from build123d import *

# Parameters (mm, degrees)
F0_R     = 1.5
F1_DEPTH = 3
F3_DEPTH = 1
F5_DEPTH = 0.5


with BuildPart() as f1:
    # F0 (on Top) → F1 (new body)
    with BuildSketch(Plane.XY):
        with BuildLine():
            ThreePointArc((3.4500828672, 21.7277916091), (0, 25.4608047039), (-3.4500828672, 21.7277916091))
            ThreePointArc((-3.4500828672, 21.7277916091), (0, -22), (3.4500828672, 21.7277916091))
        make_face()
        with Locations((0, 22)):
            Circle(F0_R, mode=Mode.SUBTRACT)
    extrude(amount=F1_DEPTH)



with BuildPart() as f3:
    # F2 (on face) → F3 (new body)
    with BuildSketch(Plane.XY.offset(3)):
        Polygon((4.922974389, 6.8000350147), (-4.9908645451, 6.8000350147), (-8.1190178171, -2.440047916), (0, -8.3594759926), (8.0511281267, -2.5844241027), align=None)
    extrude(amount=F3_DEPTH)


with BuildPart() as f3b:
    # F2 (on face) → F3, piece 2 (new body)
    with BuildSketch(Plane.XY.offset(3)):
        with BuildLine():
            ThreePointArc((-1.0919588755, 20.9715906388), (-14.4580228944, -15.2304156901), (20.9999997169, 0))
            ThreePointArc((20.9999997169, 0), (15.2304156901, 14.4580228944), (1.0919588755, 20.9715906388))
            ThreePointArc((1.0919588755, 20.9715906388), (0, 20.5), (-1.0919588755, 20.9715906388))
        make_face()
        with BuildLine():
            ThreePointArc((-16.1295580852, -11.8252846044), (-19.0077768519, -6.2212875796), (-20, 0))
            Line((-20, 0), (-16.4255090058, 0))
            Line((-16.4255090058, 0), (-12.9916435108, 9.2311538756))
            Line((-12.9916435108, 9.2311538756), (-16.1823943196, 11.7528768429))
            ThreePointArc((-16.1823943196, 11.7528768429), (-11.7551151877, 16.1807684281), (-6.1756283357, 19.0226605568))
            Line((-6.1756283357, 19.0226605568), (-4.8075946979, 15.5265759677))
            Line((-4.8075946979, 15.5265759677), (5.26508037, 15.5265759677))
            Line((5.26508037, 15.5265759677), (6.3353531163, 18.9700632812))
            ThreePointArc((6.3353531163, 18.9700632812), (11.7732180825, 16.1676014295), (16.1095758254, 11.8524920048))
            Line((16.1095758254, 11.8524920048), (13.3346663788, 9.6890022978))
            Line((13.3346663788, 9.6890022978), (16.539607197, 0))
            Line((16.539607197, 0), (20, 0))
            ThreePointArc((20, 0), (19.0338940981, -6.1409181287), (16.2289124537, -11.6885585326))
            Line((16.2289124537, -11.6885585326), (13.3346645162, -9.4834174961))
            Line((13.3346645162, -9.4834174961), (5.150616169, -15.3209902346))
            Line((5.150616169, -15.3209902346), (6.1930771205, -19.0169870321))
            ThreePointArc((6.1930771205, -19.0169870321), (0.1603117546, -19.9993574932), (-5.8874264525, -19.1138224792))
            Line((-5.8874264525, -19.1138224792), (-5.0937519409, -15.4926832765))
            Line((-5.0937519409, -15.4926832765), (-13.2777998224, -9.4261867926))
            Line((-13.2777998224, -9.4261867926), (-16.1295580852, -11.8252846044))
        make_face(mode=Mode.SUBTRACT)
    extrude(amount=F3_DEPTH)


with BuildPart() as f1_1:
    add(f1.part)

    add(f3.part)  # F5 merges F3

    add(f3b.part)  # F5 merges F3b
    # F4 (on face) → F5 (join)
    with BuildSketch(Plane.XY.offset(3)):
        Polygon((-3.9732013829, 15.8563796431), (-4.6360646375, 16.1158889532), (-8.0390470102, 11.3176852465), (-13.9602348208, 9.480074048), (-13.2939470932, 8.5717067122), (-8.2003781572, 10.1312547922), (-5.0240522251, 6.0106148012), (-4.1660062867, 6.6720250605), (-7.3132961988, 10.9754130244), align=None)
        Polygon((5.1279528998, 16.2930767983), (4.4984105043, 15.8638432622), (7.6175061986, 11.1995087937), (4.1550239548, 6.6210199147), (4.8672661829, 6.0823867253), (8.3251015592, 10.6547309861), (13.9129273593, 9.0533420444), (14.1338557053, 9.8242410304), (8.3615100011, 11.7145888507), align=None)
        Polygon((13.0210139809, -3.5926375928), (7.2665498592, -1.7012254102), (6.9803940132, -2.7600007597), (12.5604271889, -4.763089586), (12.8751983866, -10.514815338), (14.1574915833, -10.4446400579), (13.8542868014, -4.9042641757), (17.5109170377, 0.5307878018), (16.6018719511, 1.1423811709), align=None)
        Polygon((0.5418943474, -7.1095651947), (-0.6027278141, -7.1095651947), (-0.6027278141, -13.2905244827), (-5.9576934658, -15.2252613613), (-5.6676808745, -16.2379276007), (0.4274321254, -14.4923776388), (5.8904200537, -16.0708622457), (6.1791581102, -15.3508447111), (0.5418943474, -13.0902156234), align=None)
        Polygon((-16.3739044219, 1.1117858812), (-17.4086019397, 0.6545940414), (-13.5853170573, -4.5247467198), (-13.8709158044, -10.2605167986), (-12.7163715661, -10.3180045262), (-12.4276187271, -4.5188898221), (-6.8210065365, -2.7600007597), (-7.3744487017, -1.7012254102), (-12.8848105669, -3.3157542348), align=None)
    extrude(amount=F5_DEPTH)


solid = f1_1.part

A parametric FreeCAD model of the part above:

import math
import FreeCAD as App
import Part
import Sketcher

V = App.Vector
Q = App.Units.Quantity

doc = App.newDocument("Part")
body = doc.addObject("PartDesign::Body", "Body")

# Sketch on XY plane
sketch1 = doc.addObject("Sketcher::SketchObject", "Sketch")
body.addObject(sketch1)
sketch1.AttachmentSupport = (doc.XY_Plane, [""])
sketch1.MapMode = "FlatFace"
sketch1.addGeometry([
    Part.ArcOfCircle(Part.Circle(V(0, 22, 0), V(0, 0, 1), 3.460805), math.radians(-4.511239), math.radians(184.511239)),
    Part.ArcOfCircle(Part.Circle(V(0, 0, 0), V(0, 0, 1), 22), math.radians(99.022479), math.radians(440.977521)),
    Part.Circle(V(0, 22, 0), V(0, 0, 1), 1.5),
], False)
sketch1.addConstraint([
    Sketcher.Constraint("Coincident", 0, 1, 1, 2),
    Sketcher.Constraint("Coincident", 1, 1, 0, 2),
    Sketcher.Constraint("Coincident", 1, 3, -1, 1),
    Sketcher.Constraint("Coincident", 2, 3, 0, 3),
    Sketcher.Constraint("PointOnObject", 0, 3, -2),
    Sketcher.Constraint("Diameter", 2, Q("3 mm")),
    Sketcher.Constraint("Radius", 1, Q("22 mm")),
    Sketcher.Constraint("DistanceY", -1, 1, 0, 3, Q("22 mm")),
    Sketcher.Constraint("Radius", 0, Q("3.460805 mm")),
])
pad1 = doc.addObject("PartDesign::Pad", "Pad")
body.addObject(pad1)
pad1.Profile = sketch1
pad1.Length = 3
body2 = doc.addObject("PartDesign::Body", "Body001")

# Sketch on XY plane
sketch2 = doc.addObject("Sketcher::SketchObject", "Sketch001")
body2.addObject(sketch2)
sketch2.AttachmentSupport = (doc.getObject("XY_Plane001"), [""])
sketch2.MapMode = "FlatFace"
sketch2.AttachmentOffset = App.Placement(V(0, 0, 3), App.Rotation())
sketch2.addGeometry([
    Part.LineSegment(V(4.922974, 6.800035, 0), V(-4.990865, 6.800035, 0)),  # 0
    Part.LineSegment(V(-4.990865, 6.800035, 0), V(-8.119018, -2.440048, 0)),  # 1
    Part.LineSegment(V(-8.119018, -2.440048, 0), V(0, -8.359476, 0)),  # 2
    Part.LineSegment(V(0, -8.359476, 0), V(8.051128, -2.584424, 0)),  # 3
    Part.LineSegment(V(8.051128, -2.584424, 0), V(4.922974, 6.800035, 0)),  # 4
], False)
sketch2.addConstraint([
    Sketcher.Constraint("Coincident", 0, 2, 1, 1),
    Sketcher.Constraint("Coincident", 1, 2, 2, 1),
    Sketcher.Constraint("Coincident", 2, 2, 3, 1),
    Sketcher.Constraint("Coincident", 3, 2, 4, 1),
    Sketcher.Constraint("Coincident", 4, 2, 0, 1),
    Sketcher.Constraint("Horizontal", 0),
    Sketcher.Constraint("PointOnObject", 2, 2, -2),
    Sketcher.Constraint("DistanceX", 0, 2, 0, 1, Q("9.913839 mm")),
    Sketcher.Constraint("Distance", 1, Q("9.755228 mm")),
    Sketcher.Constraint("Distance", 2, Q("10.04779 mm")),
    Sketcher.Constraint("Distance", 4, Q("9.892089 mm")),
    Sketcher.Constraint("DistanceX", -1, 1, 3, 2, Q("8.051128 mm")),
    Sketcher.Constraint("DistanceY", 2, 2, 1, 2, Q("5.919428 mm")),
    Sketcher.Constraint("DistanceY", 2, 2, 0, 2, Q("15.159511 mm")),
    Sketcher.Constraint("DistanceY", -1, 1, 0, 2, Q("6.800035 mm")),
])
pad2 = doc.addObject("PartDesign::Pad", "Pad001")
body2.addObject(pad2)
pad2.Profile = sketch2
pad2.Length = 1
body3 = doc.addObject("PartDesign::Body", "Body002")

# Sketch on XY plane
sketch3 = doc.addObject("Sketcher::SketchObject", "Sketch002")
body3.addObject(sketch3)
sketch3.AttachmentSupport = (doc.getObject("XY_Plane002"), [""])
sketch3.MapMode = "FlatFace"
sketch3.AttachmentOffset = App.Placement(V(0, 0, 3), App.Rotation())
sketch3.addGeometry([
    Part.ArcOfCircle(Part.Circle(V(0, 0, 0), V(0, 0, 1), 21), math.radians(92.980613), math.radians(360)),  # 0
    Part.ArcOfCircle(Part.Circle(V(0, 0, 0), V(0, 0, 1), 21), math.radians(0), math.radians(87.019387)),  # 1
    Part.ArcOfCircle(Part.Circle(V(0, 22, 0), V(0, 0, 1), 1.5), math.radians(-136.716697), math.radians(-43.283303)),  # 2
    Part.LineSegment(V(-13.2778, -9.426187, 0), V(-16.129558, -11.825285, 0)),  # 3
    Part.ArcOfCircle(Part.Circle(V(0, 0, 0), V(0, 0, 1), 20), math.radians(180), math.radians(216.246773)),  # 4
    Part.LineSegment(V(-20, 0, 0), V(-16.425509, 0, 0)),  # 5
    Part.LineSegment(V(-16.425509, 0, 0), V(-12.991644, 9.231154, 0)),  # 6
    Part.LineSegment(V(-12.991644, 9.231154, 0), V(-16.182394, 11.752877, 0)),  # 7
    Part.ArcOfCircle(Part.Circle(V(0, 0, 0), V(0, 0, 1), 20), math.radians(107.985808), math.radians(144.010014)),  # 8
    Part.LineSegment(V(-6.175628, 19.022661, 0), V(-4.807595, 15.526576, 0)),  # 9
    Part.LineSegment(V(-4.807595, 15.526576, 0), V(5.26508, 15.526576, 0)),  # 10
    Part.LineSegment(V(5.26508, 15.526576, 0), V(6.335353, 18.970063, 0)),  # 11
    Part.ArcOfCircle(Part.Circle(V(0, 0, 0), V(0, 0, 1), 20), math.radians(36.34348), math.radians(71.532441)),  # 12
    Part.LineSegment(V(16.109576, 11.852492, 0), V(13.334666, 9.689002, 0)),  # 13
    Part.LineSegment(V(13.334666, 9.689002, 0), V(16.539607, 0, 0)),  # 14
    Part.LineSegment(V(16.539607, 0, 0), V(20, 0, 0)),  # 15
    Part.ArcOfCircle(Part.Circle(V(0, 0, 0), V(0, 0, 1), 20), math.radians(-35.762586), math.radians(0)),  # 16
    Part.LineSegment(V(16.228912, -11.688559, 0), V(13.334665, -9.483417, 0)),  # 17
    Part.LineSegment(V(13.334665, -9.483417, 0), V(5.150616, -15.32099, 0)),  # 18
    Part.LineSegment(V(5.150616, -15.32099, 0), V(6.193077, -19.016987, 0)),  # 19
    Part.ArcOfCircle(Part.Circle(V(0, 0, 0), V(0, 0, 1), 20), math.radians(-107.119843), math.radians(-71.961629)),  # 20
    Part.LineSegment(V(-5.887426, -19.113822, 0), V(-5.093752, -15.492683, 0)),  # 21
    Part.LineSegment(V(-5.093752, -15.492683, 0), V(-13.2778, -9.426187, 0)),  # 22
], False)
sketch3.addConstraint([
    Sketcher.Constraint("Tangent", 0, 2, 1, 1),
    Sketcher.Constraint("Coincident", 1, 2, 2, 2),
    Sketcher.Constraint("Coincident", 2, 1, 0, 1),
    Sketcher.Constraint("Coincident", 3, 2, 4, 2),
    Sketcher.Constraint("Coincident", 4, 1, 5, 1),
    Sketcher.Constraint("Coincident", 5, 2, 6, 1),
    Sketcher.Constraint("Coincident", 6, 2, 7, 1),
    Sketcher.Constraint("Coincident", 7, 2, 8, 2),
    Sketcher.Constraint("Coincident", 8, 1, 9, 1),
    Sketcher.Constraint("Coincident", 9, 2, 10, 1),
    Sketcher.Constraint("Coincident", 10, 2, 11, 1),
    Sketcher.Constraint("Coincident", 11, 2, 12, 2),
    Sketcher.Constraint("Coincident", 12, 1, 13, 1),
    Sketcher.Constraint("Coincident", 13, 2, 14, 1),
    Sketcher.Constraint("Coincident", 14, 2, 15, 1),
    Sketcher.Constraint("Coincident", 15, 2, 16, 2),
    Sketcher.Constraint("Coincident", 16, 1, 17, 1),
    Sketcher.Constraint("Coincident", 17, 2, 18, 1),
    Sketcher.Constraint("Coincident", 18, 2, 19, 1),
    Sketcher.Constraint("Coincident", 19, 2, 20, 2),
    Sketcher.Constraint("Coincident", 20, 1, 21, 1),
    Sketcher.Constraint("Coincident", 21, 2, 22, 1),
    Sketcher.Constraint("Coincident", 22, 2, 3, 1),
    Sketcher.Constraint("Horizontal", 5),
    Sketcher.Constraint("Horizontal", 10),
    Sketcher.Constraint("Horizontal", 15),
    Sketcher.Constraint("Coincident", 0, 3, -1, 1),
    Sketcher.Constraint("Coincident", 4, 3, -1, 1),
    Sketcher.Constraint("Coincident", 8, 3, -1, 1),
    Sketcher.Constraint("Coincident", 12, 3, -1, 1),
    Sketcher.Constraint("Coincident", 16, 3, -1, 1),
    Sketcher.Constraint("Coincident", 20, 3, -1, 1),
    Sketcher.Constraint("Equal", 0, 1),
    Sketcher.Constraint("Equal", 4, 8),
    Sketcher.Constraint("Equal", 8, 12),
    Sketcher.Constraint("Equal", 12, 16),
    Sketcher.Constraint("Equal", 16, 20),
    Sketcher.Constraint("PointOnObject", 2, 3, -2),
    Sketcher.Constraint("PointOnObject", 0, 2, -1),
    Sketcher.Constraint("PointOnObject", 4, 1, -1),
    Sketcher.Constraint("PointOnObject", 14, 2, -1),
    Sketcher.Constraint("Vertical", 13, 2, 17, 2),
    Sketcher.Constraint("Radius", 0, Q("21 mm")),
    Sketcher.Constraint("Radius", 4, Q("20 mm")),
    Sketcher.Constraint("Radius", 2, Q("1.5 mm")),
    Sketcher.Constraint("DistanceY", -1, 1, 2, 3, Q("22 mm")),
    Sketcher.Constraint("DistanceX", 5, 1, 5, 2, Q("3.574491 mm")),
    Sketcher.Constraint("DistanceX", 22, 2, -1, 1, Q("13.2778 mm")),
    Sketcher.Constraint("DistanceY", 12, 1, 1, 2, Q("9.119099 mm")),
    Sketcher.Constraint("DistanceY", 21, 2, 3, 2, Q("3.667399 mm")),
    Sketcher.Constraint("Distance", 11, Q("3.60598 mm")),
    Sketcher.Constraint("DistanceX", 10, 1, 10, 2, Q("10.072675 mm")),
    Sketcher.Constraint("DistanceX", 15, 1, 15, 2, Q("3.460393 mm")),
    Sketcher.Constraint("DistanceX", 3, 2, -1, 1, Q("16.129558 mm")),
    Sketcher.Constraint("DistanceX", 8, 1, -1, 1, Q("6.175628 mm")),
    Sketcher.Constraint("DistanceX", -1, 1, 10, 2, Q("5.26508 mm")),
    Sketcher.Constraint("DistanceY", 16, 1, -1, 1, Q("11.688559 mm")),
    Sketcher.Constraint("DistanceY", 18, 2, -1, 1, Q("15.32099 mm")),
    Sketcher.Constraint("DistanceX", 21, 2, -1, 1, Q("5.093752 mm")),
    Sketcher.Constraint("DistanceX", 7, 2, 6, 2, Q("3.190751 mm")),
    Sketcher.Constraint("DistanceX", 6, 2, 9, 2, Q("8.184049 mm")),
    Sketcher.Constraint("DistanceX", 2, 1, 11, 2, Q("7.427312 mm")),
    Sketcher.Constraint("DistanceX", 13, 2, 12, 1, Q("2.774909 mm")),
    Sketcher.Constraint("DistanceY", 13, 2, 12, 1, Q("2.16349 mm")),
    Sketcher.Constraint("DistanceY", 16, 1, 17, 2, Q("2.205141 mm")),
    Sketcher.Constraint("DistanceX", 18, 2, 17, 2, Q("8.184048 mm")),
    Sketcher.Constraint("DistanceX", 18, 2, 19, 2, Q("1.042461 mm")),
    Sketcher.Constraint("DistanceX", 3, 2, 20, 1, Q("10.242132 mm")),
    Sketcher.Constraint("Distance", 3, Q("3.726687 mm")),
    Sketcher.Constraint("Distance", 6, Q("9.849144 mm")),
])
pad3 = doc.addObject("PartDesign::Pad", "Pad002")
body3.addObject(pad3)
pad3.Profile = sketch3
pad3.Length = 1
doc.recompute()

boolean = doc.addObject("PartDesign::Boolean", "Boolean")
body.addObject(boolean)
boolean.Type = "Fuse"
boolean.addObjects([body2])
doc.recompute()

boolean2 = doc.addObject("PartDesign::Boolean", "Boolean001")
body.addObject(boolean2)
boolean2.Type = "Fuse"
boolean2.addObjects([body3])

# Sketch on XY plane
sketch4 = doc.addObject("Sketcher::SketchObject", "Sketch003")
body.addObject(sketch4)
sketch4.AttachmentSupport = (doc.XY_Plane, [""])
sketch4.MapMode = "FlatFace"
sketch4.AttachmentOffset = App.Placement(V(0, 0, 3), App.Rotation())
sketch4.addGeometry([
    Part.LineSegment(V(-3.973201, 15.85638, 0), V(-4.636065, 16.115889, 0)),  # 0
    Part.LineSegment(V(-4.636065, 16.115889, 0), V(-8.039047, 11.317685, 0)),  # 1
    Part.LineSegment(V(-8.039047, 11.317685, 0), V(-13.960235, 9.480074, 0)),  # 2
    Part.LineSegment(V(-13.960235, 9.480074, 0), V(-13.293947, 8.571707, 0)),  # 3
    Part.LineSegment(V(-13.293947, 8.571707, 0), V(-8.200378, 10.131255, 0)),  # 4
    Part.LineSegment(V(-8.200378, 10.131255, 0), V(-5.024052, 6.010615, 0)),  # 5
    Part.LineSegment(V(-5.024052, 6.010615, 0), V(-4.166006, 6.672025, 0)),  # 6
    Part.LineSegment(V(-4.166006, 6.672025, 0), V(-7.313296, 10.975413, 0)),  # 7
    Part.LineSegment(V(-7.313296, 10.975413, 0), V(-3.973201, 15.85638, 0)),  # 8
    Part.LineSegment(V(5.127953, 16.293077, 0), V(4.498411, 15.863843, 0)),  # 9
    Part.LineSegment(V(4.498411, 15.863843, 0), V(7.617506, 11.199509, 0)),  # 10
    Part.LineSegment(V(7.617506, 11.199509, 0), V(4.155024, 6.62102, 0)),  # 11
    Part.LineSegment(V(4.155024, 6.62102, 0), V(4.867266, 6.082387, 0)),  # 12
    Part.LineSegment(V(4.867266, 6.082387, 0), V(8.325102, 10.654731, 0)),  # 13
    Part.LineSegment(V(8.325102, 10.654731, 0), V(13.912927, 9.053342, 0)),  # 14
    Part.LineSegment(V(13.912927, 9.053342, 0), V(14.133856, 9.824241, 0)),  # 15
    Part.LineSegment(V(14.133856, 9.824241, 0), V(8.36151, 11.714589, 0)),  # 16
    Part.LineSegment(V(8.36151, 11.714589, 0), V(5.127953, 16.293077, 0)),  # 17
    Part.LineSegment(V(13.021014, -3.592638, 0), V(7.26655, -1.701225, 0)),  # 18
    Part.LineSegment(V(7.26655, -1.701225, 0), V(6.980394, -2.760001, 0)),  # 19
    Part.LineSegment(V(6.980394, -2.760001, 0), V(12.560427, -4.76309, 0)),  # 20
    Part.LineSegment(V(12.560427, -4.76309, 0), V(12.875198, -10.514815, 0)),  # 21
    Part.LineSegment(V(12.875198, -10.514815, 0), V(14.157492, -10.44464, 0)),  # 22
    Part.LineSegment(V(14.157492, -10.44464, 0), V(13.854287, -4.904264, 0)),  # 23
    Part.LineSegment(V(13.854287, -4.904264, 0), V(17.510917, 0.530788, 0)),  # 24
    Part.LineSegment(V(17.510917, 0.530788, 0), V(16.601872, 1.142381, 0)),  # 25
    Part.LineSegment(V(16.601872, 1.142381, 0), V(13.021014, -3.592638, 0)),  # 26
    Part.LineSegment(V(0.541894, -7.109565, 0), V(-0.602728, -7.109565, 0)),  # 27
    Part.LineSegment(V(-0.602728, -7.109565, 0), V(-0.602728, -13.290524, 0)),  # 28
    Part.LineSegment(V(-0.602728, -13.290524, 0), V(-5.957693, -15.225261, 0)),  # 29
    Part.LineSegment(V(-5.957693, -15.225261, 0), V(-5.667681, -16.237928, 0)),  # 30
    Part.LineSegment(V(-5.667681, -16.237928, 0), V(0.427432, -14.492378, 0)),  # 31
    Part.LineSegment(V(0.427432, -14.492378, 0), V(5.89042, -16.070862, 0)),  # 32
    Part.LineSegment(V(5.89042, -16.070862, 0), V(6.179158, -15.350845, 0)),  # 33
    Part.LineSegment(V(6.179158, -15.350845, 0), V(0.541894, -13.090216, 0)),  # 34
    Part.LineSegment(V(0.541894, -13.090216, 0), V(0.541894, -7.109565, 0)),  # 35
    Part.LineSegment(V(-16.373904, 1.111786, 0), V(-17.408602, 0.654594, 0)),  # 36
    Part.LineSegment(V(-17.408602, 0.654594, 0), V(-13.585317, -4.524747, 0)),  # 37
    Part.LineSegment(V(-13.585317, -4.524747, 0), V(-13.870916, -10.260517, 0)),  # 38
    Part.LineSegment(V(-13.870916, -10.260517, 0), V(-12.716372, -10.318005, 0)),  # 39
    Part.LineSegment(V(-12.716372, -10.318005, 0), V(-12.427619, -4.51889, 0)),  # 40
    Part.LineSegment(V(-12.427619, -4.51889, 0), V(-6.821007, -2.760001, 0)),  # 41
    Part.LineSegment(V(-6.821007, -2.760001, 0), V(-7.374449, -1.701225, 0)),  # 42
    Part.LineSegment(V(-7.374449, -1.701225, 0), V(-12.884811, -3.315754, 0)),  # 43
    Part.LineSegment(V(-12.884811, -3.315754, 0), V(-16.373904, 1.111786, 0)),  # 44
], False)
sketch4.addConstraint([
    Sketcher.Constraint("Coincident", 0, 2, 1, 1),
    Sketcher.Constraint("Coincident", 1, 2, 2, 1),
    Sketcher.Constraint("Coincident", 2, 2, 3, 1),
    Sketcher.Constraint("Coincident", 3, 2, 4, 1),
    Sketcher.Constraint("Coincident", 4, 2, 5, 1),
    Sketcher.Constraint("Coincident", 5, 2, 6, 1),
    Sketcher.Constraint("Coincident", 6, 2, 7, 1),
    Sketcher.Constraint("Coincident", 7, 2, 8, 1),
    Sketcher.Constraint("Coincident", 8, 2, 0, 1),
    Sketcher.Constraint("Coincident", 9, 2, 10, 1),
    Sketcher.Constraint("Coincident", 10, 2, 11, 1),
    Sketcher.Constraint("Coincident", 11, 2, 12, 1),
    Sketcher.Constraint("Coincident", 12, 2, 13, 1),
    Sketcher.Constraint("Coincident", 13, 2, 14, 1),
    Sketcher.Constraint("Coincident", 14, 2, 15, 1),
    Sketcher.Constraint("Coincident", 15, 2, 16, 1),
    Sketcher.Constraint("Coincident", 16, 2, 17, 1),
    Sketcher.Constraint("Coincident", 17, 2, 9, 1),
    Sketcher.Constraint("Coincident", 18, 2, 19, 1),
    Sketcher.Constraint("Coincident", 19, 2, 20, 1),
    Sketcher.Constraint("Coincident", 20, 2, 21, 1),
    Sketcher.Constraint("Coincident", 21, 2, 22, 1),
    Sketcher.Constraint("Coincident", 22, 2, 23, 1),
    Sketcher.Constraint("Coincident", 23, 2, 24, 1),
    Sketcher.Constraint("Coincident", 24, 2, 25, 1),
    Sketcher.Constraint("Coincident", 25, 2, 26, 1),
    Sketcher.Constraint("Coincident", 26, 2, 18, 1),
    Sketcher.Constraint("Coincident", 27, 2, 28, 1),
    Sketcher.Constraint("Coincident", 28, 2, 29, 1),
    Sketcher.Constraint("Coincident", 29, 2, 30, 1),
    Sketcher.Constraint("Coincident", 30, 2, 31, 1),
    Sketcher.Constraint("Coincident", 31, 2, 32, 1),
    Sketcher.Constraint("Coincident", 32, 2, 33, 1),
    Sketcher.Constraint("Coincident", 33, 2, 34, 1),
    Sketcher.Constraint("Coincident", 34, 2, 35, 1),
    Sketcher.Constraint("Coincident", 35, 2, 27, 1),
    Sketcher.Constraint("Coincident", 36, 2, 37, 1),
    Sketcher.Constraint("Coincident", 37, 2, 38, 1),
    Sketcher.Constraint("Coincident", 38, 2, 39, 1),
    Sketcher.Constraint("Coincident", 39, 2, 40, 1),
    Sketcher.Constraint("Coincident", 40, 2, 41, 1),
    Sketcher.Constraint("Coincident", 41, 2, 42, 1),
    Sketcher.Constraint("Coincident", 42, 2, 43, 1),
    Sketcher.Constraint("Coincident", 43, 2, 44, 1),
    Sketcher.Constraint("Coincident", 44, 2, 36, 1),
    Sketcher.Constraint("Horizontal", 27),
    Sketcher.Constraint("Vertical", 28),
    Sketcher.Constraint("Vertical", 35),
    Sketcher.Constraint("DistanceY", 19, 2, -1, 1, Q("2.760001 mm")),
    Sketcher.Constraint("DistanceY", 41, 2, -1, 1, Q("2.760001 mm")),
    Sketcher.Constraint("Distance", 40, Q("5.806299 mm")),
    Sketcher.Constraint("Distance", 42, Q("1.194698 mm")),
    Sketcher.Constraint("Distance", 44, Q("5.637099 mm")),
    Sketcher.Constraint("DistanceY", 28, 2, 28, 1, Q("6.180959 mm")),
    Sketcher.Constraint("DistanceY", 35, 1, 35, 2, Q("5.98065 mm")),
    Sketcher.Constraint("DistanceX", 8, 2, -1, 1, Q("3.973201 mm")),
    Sketcher.Constraint("DistanceX", -1, 1, 13, 2, Q("8.325102 mm")),
    Sketcher.Constraint("DistanceX", -1, 1, 21, 2, Q("12.875198 mm")),
    Sketcher.Constraint("DistanceX", 36, 2, -1, 1, Q("17.408602 mm")),
    Sketcher.Constraint("DistanceX", 3, 2, 1, 2, Q("5.2549 mm")),
    Sketcher.Constraint("DistanceY", 5, 2, 7, 2, Q("4.964798 mm")),
    Sketcher.Constraint("DistanceY", 14, 2, 9, 2, Q("6.810501 mm")),
    Sketcher.Constraint("DistanceY", 14, 2, 15, 2, Q("0.770899 mm")),
    Sketcher.Constraint("DistanceX", 9, 2, 16, 2, Q("3.863099 mm")),
    Sketcher.Constraint("DistanceX", 20, 2, 14, 2, Q("1.3525 mm")),
    Sketcher.Constraint("DistanceY", 28, 2, 18, 2, Q("11.589299 mm")),
    Sketcher.Constraint("DistanceX", 35, 2, 19, 2, Q("6.4385 mm")),
    Sketcher.Constraint("DistanceX", 38, 2, 37, 2, Q("0.285599 mm")),
    Sketcher.Constraint("DistanceY", 39, 2, 36, 2, Q("10.972599 mm")),
    Sketcher.Constraint("DistanceX", 37, 2, 40, 2, Q("1.157698 mm")),
    Sketcher.Constraint("DistanceX", 41, 2, 35, 2, Q("7.362901 mm")),
    Sketcher.Constraint("Distance", 0, Q("0.711852 mm")),
    Sketcher.Constraint("Distance", 2, Q("6.199781 mm")),
    Sketcher.Constraint("Distance", 3, Q("1.12653 mm")),
    Sketcher.Constraint("Distance", 5, Q("5.202761 mm")),
    Sketcher.Constraint("Distance", 7, Q("5.331471 mm")),
    Sketcher.Constraint("Distance", 9, Q("0.761948 mm")),
    Sketcher.Constraint("Distance", 10, Q("5.611129 mm")),
    Sketcher.Constraint("Distance", 12, Q("0.892981 mm")),
    Sketcher.Constraint("Distance", 15, Q("0.801932 mm")),
    Sketcher.Constraint("Distance", 20, Q("5.928671 mm")),
    Sketcher.Constraint("Distance", 22, Q("1.284212 mm")),
    Sketcher.Constraint("Distance", 24, Q("6.550629 mm")),
    Sketcher.Constraint("Distance", 25, Q("1.095632 mm")),
    Sketcher.Constraint("Distance", 37, Q("6.43763 mm")),
    Sketcher.Constraint("Distance", 43, Q("5.74202 mm")),
    Sketcher.Constraint("DistanceX", 27, 2, 27, 1, Q("1.144622 mm")),
    Sketcher.Constraint("DistanceY", -1, 1, 0, 2, Q("16.115889 mm")),
    Sketcher.Constraint("DistanceX", 4, 2, -1, 1, Q("8.200378 mm")),
    Sketcher.Constraint("DistanceY", -1, 1, 8, 2, Q("15.85638 mm")),
    Sketcher.Constraint("DistanceX", -1, 1, 9, 2, Q("4.498411 mm")),
    Sketcher.Constraint("DistanceY", -1, 1, 10, 2, Q("11.199509 mm")),
    Sketcher.Constraint("DistanceY", -1, 1, 11, 2, Q("6.62102 mm")),
    Sketcher.Constraint("DistanceY", -1, 1, 13, 2, Q("10.654731 mm")),
    Sketcher.Constraint("DistanceY", -1, 1, 15, 2, Q("9.824241 mm")),
    Sketcher.Constraint("DistanceY", -1, 1, 16, 2, Q("11.714589 mm")),
    Sketcher.Constraint("DistanceX", -1, 1, 18, 2, Q("7.26655 mm")),
    Sketcher.Constraint("DistanceY", 20, 2, -1, 1, Q("4.76309 mm")),
    Sketcher.Constraint("DistanceX", -1, 1, 22, 2, Q("14.157492 mm")),
    Sketcher.Constraint("DistanceY", 22, 2, -1, 1, Q("10.44464 mm")),
    Sketcher.Constraint("DistanceX", -1, 1, 25, 2, Q("16.601872 mm")),
    Sketcher.Constraint("DistanceY", -1, 1, 25, 2, Q("1.142381 mm")),
    Sketcher.Constraint("DistanceY", 29, 2, -1, 1, Q("15.225261 mm")),
    Sketcher.Constraint("DistanceX", 30, 2, -1, 1, Q("5.667681 mm")),
    Sketcher.Constraint("DistanceX", -1, 1, 32, 2, Q("5.89042 mm")),
    Sketcher.Constraint("DistanceX", -1, 1, 33, 2, Q("6.179158 mm")),
    Sketcher.Constraint("DistanceX", 39, 2, -1, 1, Q("12.716372 mm")),
    Sketcher.Constraint("DistanceX", 40, 2, -1, 1, Q("12.427619 mm")),
    Sketcher.Constraint("DistanceY", 40, 2, -1, 1, Q("4.51889 mm")),
    Sketcher.Constraint("DistanceX", 42, 2, -1, 1, Q("7.374449 mm")),
    Sketcher.Constraint("DistanceX", 43, 2, -1, 1, Q("12.884811 mm")),
    Sketcher.Constraint("DistanceY", 2, 2, 1, 2, Q("1.837611 mm")),
    Sketcher.Constraint("DistanceX", 2, 2, 0, 2, Q("9.32417 mm")),
    Sketcher.Constraint("DistanceY", 4, 2, 1, 2, Q("1.18643 mm")),
    Sketcher.Constraint("DistanceY", 5, 2, 4, 2, Q("4.12064 mm")),
    Sketcher.Constraint("DistanceY", 5, 2, 6, 2, Q("0.66141 mm")),
    Sketcher.Constraint("DistanceX", 4, 2, 6, 2, Q("4.034372 mm")),
    Sketcher.Constraint("DistanceY", 6, 2, 9, 2, Q("9.191818 mm")),
    Sketcher.Constraint("DistanceX", 6, 2, 11, 2, Q("8.32103 mm")),
    Sketcher.Constraint("DistanceX", 12, 2, 10, 2, Q("2.75024 mm")),
    Sketcher.Constraint("DistanceX", 10, 2, 14, 2, Q("6.295421 mm")),
    Sketcher.Constraint("DistanceY", 10, 2, 17, 2, Q("5.093568 mm")),
    Sketcher.Constraint("DistanceY", 21, 2, 18, 2, Q("8.81359 mm")),
    Sketcher.Constraint("DistanceX", 20, 2, 23, 2, Q("1.29386 mm")),
    Sketcher.Constraint("DistanceY", 21, 2, 23, 2, Q("5.610551 mm")),
    Sketcher.Constraint("DistanceY", 20, 2, 26, 2, Q("1.170452 mm")),
    Sketcher.Constraint("DistanceX", 29, 2, 21, 2, Q("18.832892 mm")),
    Sketcher.Constraint("DistanceX", 28, 2, 31, 2, Q("1.03016 mm")),
    Sketcher.Constraint("DistanceY", 30, 2, 31, 2, Q("1.74555 mm")),
    Sketcher.Constraint("DistanceY", 33, 2, 28, 2, Q("2.06032 mm")),
    Sketcher.Constraint("DistanceY", 38, 2, 37, 2, Q("5.73577 mm")),
    Sketcher.Constraint("DistanceY", 30, 2, 38, 2, Q("5.977411 mm")),
    Sketcher.Constraint("DistanceY", 36, 2, 44, 2, Q("0.457192 mm")),
    Sketcher.Constraint("Distance", 18, Q("6.057334 mm")),
    Sketcher.Constraint("Distance", 32, Q("5.686462 mm")),
])
pad4 = doc.addObject("PartDesign::Pad", "Pad003")
body.addObject(pad4)
pad4.Profile = sketch4
pad4.Length = 0.5

doc.recompute()
